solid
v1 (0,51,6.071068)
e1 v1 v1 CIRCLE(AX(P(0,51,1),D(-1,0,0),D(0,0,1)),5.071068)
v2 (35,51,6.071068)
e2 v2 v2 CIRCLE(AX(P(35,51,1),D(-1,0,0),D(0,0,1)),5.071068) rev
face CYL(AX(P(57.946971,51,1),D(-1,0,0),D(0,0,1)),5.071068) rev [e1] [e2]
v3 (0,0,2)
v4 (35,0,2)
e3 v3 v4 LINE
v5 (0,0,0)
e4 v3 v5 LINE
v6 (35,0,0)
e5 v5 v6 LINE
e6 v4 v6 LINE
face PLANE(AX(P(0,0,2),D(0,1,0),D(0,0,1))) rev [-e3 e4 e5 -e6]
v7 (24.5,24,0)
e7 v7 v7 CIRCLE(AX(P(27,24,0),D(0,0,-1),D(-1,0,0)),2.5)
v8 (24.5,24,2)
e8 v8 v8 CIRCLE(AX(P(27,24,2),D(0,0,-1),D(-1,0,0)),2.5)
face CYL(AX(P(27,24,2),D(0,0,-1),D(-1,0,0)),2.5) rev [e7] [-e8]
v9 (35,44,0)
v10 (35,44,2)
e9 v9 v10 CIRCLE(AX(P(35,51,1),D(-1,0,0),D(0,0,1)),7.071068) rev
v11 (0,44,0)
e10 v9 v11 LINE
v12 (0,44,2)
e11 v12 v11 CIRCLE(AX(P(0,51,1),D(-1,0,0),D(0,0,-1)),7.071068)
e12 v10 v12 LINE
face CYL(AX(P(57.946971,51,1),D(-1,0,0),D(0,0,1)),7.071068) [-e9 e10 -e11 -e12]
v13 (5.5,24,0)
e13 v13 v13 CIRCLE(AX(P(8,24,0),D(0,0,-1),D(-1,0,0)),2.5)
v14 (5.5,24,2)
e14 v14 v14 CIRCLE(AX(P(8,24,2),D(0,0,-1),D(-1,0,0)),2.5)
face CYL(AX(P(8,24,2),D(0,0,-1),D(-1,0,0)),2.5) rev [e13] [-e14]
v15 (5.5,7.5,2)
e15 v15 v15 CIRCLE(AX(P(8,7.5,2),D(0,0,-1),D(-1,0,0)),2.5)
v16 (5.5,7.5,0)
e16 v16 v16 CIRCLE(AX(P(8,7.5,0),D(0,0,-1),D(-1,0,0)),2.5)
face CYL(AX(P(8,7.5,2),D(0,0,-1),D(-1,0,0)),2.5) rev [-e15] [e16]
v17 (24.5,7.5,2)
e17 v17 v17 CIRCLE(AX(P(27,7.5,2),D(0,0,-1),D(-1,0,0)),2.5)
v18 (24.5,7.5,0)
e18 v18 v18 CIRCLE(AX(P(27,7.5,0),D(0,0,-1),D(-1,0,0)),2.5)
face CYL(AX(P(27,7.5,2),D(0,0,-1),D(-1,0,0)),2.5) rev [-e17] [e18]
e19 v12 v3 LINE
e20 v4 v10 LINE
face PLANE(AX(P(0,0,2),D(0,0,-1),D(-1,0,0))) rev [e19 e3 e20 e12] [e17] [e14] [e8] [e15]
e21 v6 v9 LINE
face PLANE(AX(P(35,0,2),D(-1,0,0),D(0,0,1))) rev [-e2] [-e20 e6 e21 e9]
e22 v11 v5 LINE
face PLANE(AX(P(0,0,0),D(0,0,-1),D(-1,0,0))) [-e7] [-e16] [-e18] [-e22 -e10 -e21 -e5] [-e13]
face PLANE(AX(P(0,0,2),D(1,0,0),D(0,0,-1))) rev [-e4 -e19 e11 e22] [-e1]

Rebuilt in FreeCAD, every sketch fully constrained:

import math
import FreeCAD as App
import Part
import Sketcher

V = App.Vector
Q = App.Units.Quantity


def add_polygon(sketch, points):
    """Adds a closed chain of lines whose ends are joined by coincident constraints."""
    first, n = sketch.GeometryCount, len(points)
    for a, b in zip(points, points[1:] + points[:1]):
        sketch.addGeometry(Part.LineSegment(App.Vector(*a, 0), App.Vector(*b, 0)), False)
    for i in range(n):
        sketch.addConstraint(Sketcher.Constraint("Coincident", first + i, 2, first + (i + 1) % n, 1))

doc = App.newDocument("Part")
body = doc.addObject("PartDesign::Body", "Body")

sketch1 = body.newObject("Sketcher::SketchObject", "Sketch")
sketch1.AttachmentSupport = (doc.getObject("XY_Plane"), [""])
sketch1.MapMode = "FlatFace"
add_polygon(sketch1, [(0, 40), (0, 0), (35, 0), (35, 40)])
sketch1.addConstraint(Sketcher.Constraint("Vertical", 0))
sketch1.addConstraint(Sketcher.Constraint("Horizontal", 1))
sketch1.addConstraint(Sketcher.Constraint("Vertical", 2))
sketch1.addConstraint(Sketcher.Constraint("Horizontal", 3))
sketch1.addConstraint(Sketcher.Constraint("Coincident", 0, 2, -1, 1))
sketch1.addConstraint(Sketcher.Constraint("DistanceX", 1, 1, 1, 2, Q("35 mm")))
sketch1.addConstraint(Sketcher.Constraint("DistanceY", 0, 2, 0, 1, Q("40 mm")))
pad1 = body.newObject("PartDesign::Pad", "Pad")
pad1.Profile = sketch1
pad1.Length = 2

sketch2 = body.newObject("Sketcher::SketchObject", "Sketch001")
sketch2.AttachmentSupport = (doc.getObject("XY_Plane"), [""])
sketch2.MapMode = "FlatFace"
sketch2.addGeometry(Part.Circle(V(27, 24, 0), V(0, 0, 1), 2.5), False)
sketch2.addGeometry(Part.Circle(V(8, 24, 0), V(0, 0, 1), 2.5), False)
sketch2.addGeometry(Part.Circle(V(8, 7.5, 0), V(0, 0, 1), 2.5), False)
sketch2.addGeometry(Part.Circle(V(27, 7.5, 0), V(0, 0, 1), 2.5), False)
sketch2.addConstraint(Sketcher.Constraint("Equal", 0, 1))
sketch2.addConstraint(Sketcher.Constraint("Equal", 1, 2))
sketch2.addConstraint(Sketcher.Constraint("Equal", 2, 3))
sketch2.addConstraint(Sketcher.Constraint("Horizontal", 0, 3, 1, 3))
sketch2.addConstraint(Sketcher.Constraint("Horizontal", 2, 3, 3, 3))
sketch2.addConstraint(Sketcher.Constraint("Vertical", 1, 3, 2, 3))
sketch2.addConstraint(Sketcher.Constraint("Vertical", 0, 3, 3, 3))
sketch2.addConstraint(Sketcher.Constraint("Diameter", 0, Q("5 mm")))
sketch2.addConstraint(Sketcher.Constraint("DistanceX", -1, 1, 0, 3, Q("27 mm")))
sketch2.addConstraint(Sketcher.Constraint("DistanceY", -1, 1, 0, 3, Q("24 mm")))
sketch2.addConstraint(Sketcher.Constraint("DistanceX", -1, 1, 1, 3, Q("8 mm")))
sketch2.addConstraint(Sketcher.Constraint("DistanceY", -1, 1, 2, 3, Q("7.5 mm")))
pocket1 = body.newObject("PartDesign::Pocket", "Pocket")
pocket1.Profile = sketch2
pocket1.Type = "ThroughAll"
pocket1.Reversed = True

sketch3 = body.newObject("Sketcher::SketchObject", "Sketch002")
sketch3.AttachmentSupport = (doc.getObject("YZ_Plane"), [""])
sketch3.MapMode = "FlatFace"
sketch3.addGeometry(Part.LineSegment(V(40, 0, 0), V(40, 2, 0)), False)
sketch3.addGeometry(Part.LineSegment(V(40, 2, 0), V(44, 2, 0)), False)
sketch3.addGeometry(Part.ArcOfCircle(Part.Circle(V(51, 1, 0), V(0, 0, 1), 7.1), math.radians(-172), math.radians(172)), False)
sketch3.addGeometry(Part.LineSegment(V(44, 0, 0), V(40, 0, 0)), False)
sketch3.addGeometry(Part.Circle(V(51, 1, 0), V(0, 0, 1), 5.1), False)
sketch3.addConstraint(Sketcher.Constraint("Coincident", 0, 2, 1, 1))
sketch3.addConstraint(Sketcher.Constraint("Coincident", 1, 2, 2, 2))
sketch3.addConstraint(Sketcher.Constraint("Coincident", 2, 1, 3, 1))
sketch3.addConstraint(Sketcher.Constraint("Coincident", 3, 2, 0, 1))
sketch3.addConstraint(Sketcher.Constraint("Vertical", 0))
sketch3.addConstraint(Sketcher.Constraint("Horizontal", 1))
sketch3.addConstraint(Sketcher.Constraint("Horizontal", 3))
sketch3.addConstraint(Sketcher.Constraint("Coincident", 4, 3, 2, 3))
sketch3.addConstraint(Sketcher.Constraint("PointOnObject", 2, 1, -1))
sketch3.addConstraint(Sketcher.Constraint("Vertical", 1, 2, 2, 1))
sketch3.addConstraint(Sketcher.Constraint("DistanceX", 1, 1, 1, 2, Q("4 mm")))
sketch3.addConstraint(Sketcher.Constraint("DistanceY", 0, 1, 0, 2, Q("2 mm")))
sketch3.addConstraint(Sketcher.Constraint("DistanceX", -1, 1, 2, 3, Q("51 mm")))
sketch3.addConstraint(Sketcher.Constraint("DistanceX", -1, 1, 0, 2, Q("40 mm")))
sketch3.addConstraint(Sketcher.Constraint("Diameter", 4, Q("10.142136 mm")))
pad2 = body.newObject("PartDesign::Pad", "Pad001")
pad2.Profile = sketch3
pad2.Length = 35

doc.recompute()
